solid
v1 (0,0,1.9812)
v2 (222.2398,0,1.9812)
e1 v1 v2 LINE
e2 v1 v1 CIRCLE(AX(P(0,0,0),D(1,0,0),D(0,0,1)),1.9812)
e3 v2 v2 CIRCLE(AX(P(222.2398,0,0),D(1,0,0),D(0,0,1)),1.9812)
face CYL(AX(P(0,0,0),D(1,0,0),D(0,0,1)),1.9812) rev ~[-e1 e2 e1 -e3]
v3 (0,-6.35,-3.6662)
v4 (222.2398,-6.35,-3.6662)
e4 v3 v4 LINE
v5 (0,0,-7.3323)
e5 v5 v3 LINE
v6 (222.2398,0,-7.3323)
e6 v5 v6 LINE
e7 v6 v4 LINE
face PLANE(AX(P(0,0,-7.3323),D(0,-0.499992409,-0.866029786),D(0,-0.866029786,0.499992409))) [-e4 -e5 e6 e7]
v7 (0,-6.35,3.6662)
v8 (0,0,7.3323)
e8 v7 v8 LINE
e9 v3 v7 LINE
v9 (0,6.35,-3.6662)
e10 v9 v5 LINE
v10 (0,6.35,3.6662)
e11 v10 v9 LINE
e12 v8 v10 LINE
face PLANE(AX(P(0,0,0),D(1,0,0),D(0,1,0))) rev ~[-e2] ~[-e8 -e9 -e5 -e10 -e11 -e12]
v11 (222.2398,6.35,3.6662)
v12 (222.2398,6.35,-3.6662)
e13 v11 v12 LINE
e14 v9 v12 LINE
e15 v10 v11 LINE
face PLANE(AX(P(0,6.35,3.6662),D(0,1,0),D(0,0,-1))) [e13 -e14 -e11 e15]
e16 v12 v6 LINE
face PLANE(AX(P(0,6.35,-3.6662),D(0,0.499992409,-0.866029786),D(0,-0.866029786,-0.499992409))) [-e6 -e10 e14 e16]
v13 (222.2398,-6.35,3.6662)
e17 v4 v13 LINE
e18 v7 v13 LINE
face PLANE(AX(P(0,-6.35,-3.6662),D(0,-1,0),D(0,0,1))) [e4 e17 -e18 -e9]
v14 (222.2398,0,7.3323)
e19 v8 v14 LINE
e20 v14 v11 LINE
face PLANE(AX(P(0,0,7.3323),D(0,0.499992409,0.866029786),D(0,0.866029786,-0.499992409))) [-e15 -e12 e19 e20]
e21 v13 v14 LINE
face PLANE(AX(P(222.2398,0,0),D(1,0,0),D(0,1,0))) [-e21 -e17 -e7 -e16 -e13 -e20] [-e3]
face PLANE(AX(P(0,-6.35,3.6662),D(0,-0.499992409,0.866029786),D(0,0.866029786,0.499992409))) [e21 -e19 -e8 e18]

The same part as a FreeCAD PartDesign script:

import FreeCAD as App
import Part
import Sketcher
Q = App.Units.Quantity


def add_polygon(sketch, points):
    """Adds a closed chain of lines whose ends are joined by coincident constraints."""
    first, n = sketch.GeometryCount, len(points)
    for a, b in zip(points, points[1:] + points[:1]):
        sketch.addGeometry(Part.LineSegment(App.Vector(*a, 0), App.Vector(*b, 0)), False)
    for i in range(n):
        sketch.addConstraint(Sketcher.Constraint("Coincident", first + i, 2, first + (i + 1) % n, 1))

doc = App.newDocument("Part")
body = doc.addObject("PartDesign::Body", "Body")

# Sketch on YZ plane
sketch1 = body.newObject("Sketcher::SketchObject", "Sketch")
sketch1.AttachmentSupport = (doc.getObject("YZ_Plane"), [""])
sketch1.MapMode = "FlatFace"
add_polygon(sketch1, [(-6, 4), (-6, -4), (0, -7), (6, -4), (6, 4), (0, 7)])  # lines 0-5
sketch1.addConstraint([
    Sketcher.Constraint("Vertical", 0),
    Sketcher.Constraint("Vertical", 3),
    Sketcher.Constraint("Symmetric", 0, 2, 3, 2, -1, 1),
    Sketcher.Constraint("Symmetric", 1, 2, 4, 2, -1, 1),
    Sketcher.Constraint("PointOnObject", 1, 2, -2),
    Sketcher.Constraint("Parallel", 2, 5),
    Sketcher.Constraint("Horizontal", 0, 2, 2, 2),
    Sketcher.Constraint("DistanceX", 0, 2, 2, 2, Q("0.5 in")),
    Sketcher.Constraint("Angle", 1, Q("-29.9995 deg")),
    Sketcher.Constraint("DistanceY", 1, 2, 3, 2, Q("0.433 in")),
])
pad1 = body.newObject("PartDesign::Pad", "Pad")
pad1.Profile = sketch1
pad1.Length = Q("8.7495984 in")

# Sketch on YZ plane
sketch2 = body.newObject("Sketcher::SketchObject", "Sketch001")
sketch2.AttachmentSupport = (doc.getObject("YZ_Plane"), [""])
sketch2.MapMode = "FlatFace"
sketch2.addGeometry(Part.Circle(App.Vector(0, 0, 0), App.Vector(0, 0, 1), 2), False)
sketch2.addConstraint([
    Sketcher.Constraint("Coincident", 0, 3, -1, 1),
    Sketcher.Constraint("Diameter", 0, Q("0.156 in")),
])
doc.recompute()
hole = body.newObject("PartDesign::Hole", "Hole")
hole.Profile = sketch2
hole.ThreadType = "None"
hole.Diameter = Q("0.156 in")
hole.DepthType = "ThroughAll"
hole.Reversed = True

doc.recompute()
